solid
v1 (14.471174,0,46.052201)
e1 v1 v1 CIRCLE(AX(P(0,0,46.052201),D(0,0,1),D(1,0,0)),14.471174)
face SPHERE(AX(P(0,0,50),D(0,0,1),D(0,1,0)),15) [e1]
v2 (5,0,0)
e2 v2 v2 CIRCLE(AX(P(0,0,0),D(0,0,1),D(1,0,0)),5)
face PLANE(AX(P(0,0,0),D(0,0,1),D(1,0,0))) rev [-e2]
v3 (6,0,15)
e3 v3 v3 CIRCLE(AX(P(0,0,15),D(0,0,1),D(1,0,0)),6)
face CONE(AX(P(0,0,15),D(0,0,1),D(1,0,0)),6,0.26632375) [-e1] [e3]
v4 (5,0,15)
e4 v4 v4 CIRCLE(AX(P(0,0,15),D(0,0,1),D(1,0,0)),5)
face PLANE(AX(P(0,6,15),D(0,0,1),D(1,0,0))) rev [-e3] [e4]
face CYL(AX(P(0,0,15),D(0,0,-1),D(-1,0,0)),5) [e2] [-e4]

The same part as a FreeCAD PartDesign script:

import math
import FreeCAD as App
import Part
import Sketcher
Q = App.Units.Quantity

doc = App.newDocument("Part")
body = doc.addObject("PartDesign::Body", "Body")

# Sketch on XY plane
sketch1 = body.newObject("Sketcher::SketchObject", "Sketch")
sketch1.AttachmentSupport = (doc.getObject("XY_Plane"), [""])
sketch1.MapMode = "FlatFace"
sketch1.addGeometry(Part.Circle(App.Vector(0, 0, 0), App.Vector(0, 0, 1), 5), False)
sketch1.addConstraint(Sketcher.Constraint("Coincident", 0, 3, -1, 1))
sketch1.addConstraint(Sketcher.Constraint("Diameter", 0, Q("10 mm")))
pad1 = body.newObject("PartDesign::Pad", "Pad")
pad1.Profile = sketch1
pad1.Length = 15

# Sketch on YZ plane
sketch2 = body.newObject("Sketcher::SketchObject", "Sketch001")
sketch2.AttachmentSupport = (doc.getObject("YZ_Plane"), [""])
sketch2.MapMode = "FlatFace"
sketch2.addGeometry(Part.LineSegment(App.Vector(0, 65, 0), App.Vector(0, 15, 0)), False)
sketch2.addGeometry(Part.LineSegment(App.Vector(0, 15, 0), App.Vector(6, 15, 0)), False)
sketch2.addGeometry(Part.LineSegment(App.Vector(6, 15, 0), App.Vector(14.471174, 46.052201, 0)), False)
sketch2.addGeometry(Part.ArcOfCircle(Part.Circle(App.Vector(0, 50, 0), App.Vector(0, 0, 1), 15), math.radians(-15.259227), math.radians(90)), False)
sketch2.addConstraint(Sketcher.Constraint("Coincident", 0, 2, 1, 1))
sketch2.addConstraint(Sketcher.Constraint("Coincident", 1, 2, 2, 1))
sketch2.addConstraint(Sketcher.Constraint("Tangent", 2, 2, 3, 1))
sketch2.addConstraint(Sketcher.Constraint("Coincident", 3, 2, 0, 1))
sketch2.addConstraint(Sketcher.Constraint("Vertical", 0))
sketch2.addConstraint(Sketcher.Constraint("Horizontal", 1))
sketch2.addConstraint(Sketcher.Constraint("PointOnObject", 3, 3, -2))
sketch2.addConstraint(Sketcher.Constraint("PointOnObject", 0, 2, -2))
sketch2.addConstraint(Sketcher.Constraint("Radius", 3, Q("15 mm")))
sketch2.addConstraint(Sketcher.Constraint("DistanceX", 1, 1, 1, 2, Q("6 mm")))
sketch2.addConstraint(Sketcher.Constraint("DistanceY", 0, 2, 0, 1, Q("50 mm")))
sketch2.addConstraint(Sketcher.Constraint("DistanceY", -1, 1, 3, 3, Q("50 mm")))
revolution = body.newObject("PartDesign::Revolution", "Revolution")
revolution.Profile = sketch2
revolution.ReferenceAxis = (sketch2, ["V_Axis"])
revolution.Angle = 360

doc.recompute()
